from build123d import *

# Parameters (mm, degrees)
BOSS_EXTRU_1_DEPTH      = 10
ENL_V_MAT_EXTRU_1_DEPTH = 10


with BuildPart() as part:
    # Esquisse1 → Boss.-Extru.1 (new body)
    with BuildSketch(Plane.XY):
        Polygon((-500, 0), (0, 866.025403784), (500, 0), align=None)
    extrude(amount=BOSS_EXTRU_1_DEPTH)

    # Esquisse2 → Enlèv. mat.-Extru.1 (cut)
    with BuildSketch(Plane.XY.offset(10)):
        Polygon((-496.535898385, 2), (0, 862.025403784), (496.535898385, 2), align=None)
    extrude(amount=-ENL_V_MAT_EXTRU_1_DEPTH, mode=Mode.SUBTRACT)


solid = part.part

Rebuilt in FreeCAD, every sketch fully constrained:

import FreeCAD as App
import Part
import Sketcher
from FreeCAD import Vector
Q = App.Units.Quantity

doc = App.newDocument("Part")
body = doc.addObject("PartDesign::Body", "Body")

sketch1 = doc.addObject("Sketcher::SketchObject", "Sketch")
body.addObject(sketch1)
sketch1.AttachmentSupport = (doc.XY_Plane, [""])
sketch1.MapMode = "FlatFace"
sketch1.addGeometry([
    Part.LineSegment(Vector(0, 866.025404, 0), Vector(-500, 0, 0)),
    Part.LineSegment(Vector(-500, 0, 0), Vector(500, 0, 0)),
    Part.LineSegment(Vector(500, 0, 0), Vector(0, 866.025404, 0)),
], False)
sketch1.addConstraint([
    Sketcher.Constraint("Coincident", 0, 2, 1, 1),
    Sketcher.Constraint("Coincident", 1, 2, 2, 1),
    Sketcher.Constraint("Coincident", 2, 2, 0, 1),
    Sketcher.Constraint("Horizontal", 1),
    Sketcher.Constraint("Symmetric", 0, 2, 1, 2, -1, 1),
    Sketcher.Constraint("PointOnObject", 2, 2, -2),
    Sketcher.Constraint("DistanceX", 1, 1, 1, 2, 1000.0),
    Sketcher.Constraint("Angle", 0, Q("-120 deg")),
])
pad1 = doc.addObject("PartDesign::Pad", "Pad")
body.addObject(pad1)
pad1.Profile = sketch1
pad1.Length = 10

sketch2 = doc.addObject("Sketcher::SketchObject", "Sketch001")
body.addObject(sketch2)
sketch2.AttachmentSupport = (doc.XY_Plane, [""])
sketch2.MapMode = "FlatFace"
sketch2.AttachmentOffset = App.Placement(Vector(0, 0, 10), App.Rotation())
sketch2.addGeometry([
    Part.LineSegment(Vector(0, 862.025404, 0), Vector(-496.535898, 2, 0)),
    Part.LineSegment(Vector(-496.535898, 2, 0), Vector(496.535898, 2, 0)),
    Part.LineSegment(Vector(496.535898, 2, 0), Vector(0, 862.025404, 0)),
], False)
sketch2.addConstraint([
    Sketcher.Constraint("Coincident", 0, 2, 1, 1),
    Sketcher.Constraint("Coincident", 1, 2, 2, 1),
    Sketcher.Constraint("Coincident", 2, 2, 0, 1),
    Sketcher.Constraint("Horizontal", 1),
    Sketcher.Constraint("PointOnObject", 2, 2, -2),
    Sketcher.Constraint("Equal", 0, 2),
    Sketcher.Constraint("Angle", 0, Q("-120 deg")),
    Sketcher.Constraint("DistanceY", -1, 1, 0, 2, 2.0),
    Sketcher.Constraint("DistanceX", 0, 2, -1, 1, 496.535898),
])
pocket1 = doc.addObject("PartDesign::Pocket", "Pocket")
body.addObject(pocket1)
pocket1.Profile = sketch2
pocket1.Length = 10

doc.recompute()
